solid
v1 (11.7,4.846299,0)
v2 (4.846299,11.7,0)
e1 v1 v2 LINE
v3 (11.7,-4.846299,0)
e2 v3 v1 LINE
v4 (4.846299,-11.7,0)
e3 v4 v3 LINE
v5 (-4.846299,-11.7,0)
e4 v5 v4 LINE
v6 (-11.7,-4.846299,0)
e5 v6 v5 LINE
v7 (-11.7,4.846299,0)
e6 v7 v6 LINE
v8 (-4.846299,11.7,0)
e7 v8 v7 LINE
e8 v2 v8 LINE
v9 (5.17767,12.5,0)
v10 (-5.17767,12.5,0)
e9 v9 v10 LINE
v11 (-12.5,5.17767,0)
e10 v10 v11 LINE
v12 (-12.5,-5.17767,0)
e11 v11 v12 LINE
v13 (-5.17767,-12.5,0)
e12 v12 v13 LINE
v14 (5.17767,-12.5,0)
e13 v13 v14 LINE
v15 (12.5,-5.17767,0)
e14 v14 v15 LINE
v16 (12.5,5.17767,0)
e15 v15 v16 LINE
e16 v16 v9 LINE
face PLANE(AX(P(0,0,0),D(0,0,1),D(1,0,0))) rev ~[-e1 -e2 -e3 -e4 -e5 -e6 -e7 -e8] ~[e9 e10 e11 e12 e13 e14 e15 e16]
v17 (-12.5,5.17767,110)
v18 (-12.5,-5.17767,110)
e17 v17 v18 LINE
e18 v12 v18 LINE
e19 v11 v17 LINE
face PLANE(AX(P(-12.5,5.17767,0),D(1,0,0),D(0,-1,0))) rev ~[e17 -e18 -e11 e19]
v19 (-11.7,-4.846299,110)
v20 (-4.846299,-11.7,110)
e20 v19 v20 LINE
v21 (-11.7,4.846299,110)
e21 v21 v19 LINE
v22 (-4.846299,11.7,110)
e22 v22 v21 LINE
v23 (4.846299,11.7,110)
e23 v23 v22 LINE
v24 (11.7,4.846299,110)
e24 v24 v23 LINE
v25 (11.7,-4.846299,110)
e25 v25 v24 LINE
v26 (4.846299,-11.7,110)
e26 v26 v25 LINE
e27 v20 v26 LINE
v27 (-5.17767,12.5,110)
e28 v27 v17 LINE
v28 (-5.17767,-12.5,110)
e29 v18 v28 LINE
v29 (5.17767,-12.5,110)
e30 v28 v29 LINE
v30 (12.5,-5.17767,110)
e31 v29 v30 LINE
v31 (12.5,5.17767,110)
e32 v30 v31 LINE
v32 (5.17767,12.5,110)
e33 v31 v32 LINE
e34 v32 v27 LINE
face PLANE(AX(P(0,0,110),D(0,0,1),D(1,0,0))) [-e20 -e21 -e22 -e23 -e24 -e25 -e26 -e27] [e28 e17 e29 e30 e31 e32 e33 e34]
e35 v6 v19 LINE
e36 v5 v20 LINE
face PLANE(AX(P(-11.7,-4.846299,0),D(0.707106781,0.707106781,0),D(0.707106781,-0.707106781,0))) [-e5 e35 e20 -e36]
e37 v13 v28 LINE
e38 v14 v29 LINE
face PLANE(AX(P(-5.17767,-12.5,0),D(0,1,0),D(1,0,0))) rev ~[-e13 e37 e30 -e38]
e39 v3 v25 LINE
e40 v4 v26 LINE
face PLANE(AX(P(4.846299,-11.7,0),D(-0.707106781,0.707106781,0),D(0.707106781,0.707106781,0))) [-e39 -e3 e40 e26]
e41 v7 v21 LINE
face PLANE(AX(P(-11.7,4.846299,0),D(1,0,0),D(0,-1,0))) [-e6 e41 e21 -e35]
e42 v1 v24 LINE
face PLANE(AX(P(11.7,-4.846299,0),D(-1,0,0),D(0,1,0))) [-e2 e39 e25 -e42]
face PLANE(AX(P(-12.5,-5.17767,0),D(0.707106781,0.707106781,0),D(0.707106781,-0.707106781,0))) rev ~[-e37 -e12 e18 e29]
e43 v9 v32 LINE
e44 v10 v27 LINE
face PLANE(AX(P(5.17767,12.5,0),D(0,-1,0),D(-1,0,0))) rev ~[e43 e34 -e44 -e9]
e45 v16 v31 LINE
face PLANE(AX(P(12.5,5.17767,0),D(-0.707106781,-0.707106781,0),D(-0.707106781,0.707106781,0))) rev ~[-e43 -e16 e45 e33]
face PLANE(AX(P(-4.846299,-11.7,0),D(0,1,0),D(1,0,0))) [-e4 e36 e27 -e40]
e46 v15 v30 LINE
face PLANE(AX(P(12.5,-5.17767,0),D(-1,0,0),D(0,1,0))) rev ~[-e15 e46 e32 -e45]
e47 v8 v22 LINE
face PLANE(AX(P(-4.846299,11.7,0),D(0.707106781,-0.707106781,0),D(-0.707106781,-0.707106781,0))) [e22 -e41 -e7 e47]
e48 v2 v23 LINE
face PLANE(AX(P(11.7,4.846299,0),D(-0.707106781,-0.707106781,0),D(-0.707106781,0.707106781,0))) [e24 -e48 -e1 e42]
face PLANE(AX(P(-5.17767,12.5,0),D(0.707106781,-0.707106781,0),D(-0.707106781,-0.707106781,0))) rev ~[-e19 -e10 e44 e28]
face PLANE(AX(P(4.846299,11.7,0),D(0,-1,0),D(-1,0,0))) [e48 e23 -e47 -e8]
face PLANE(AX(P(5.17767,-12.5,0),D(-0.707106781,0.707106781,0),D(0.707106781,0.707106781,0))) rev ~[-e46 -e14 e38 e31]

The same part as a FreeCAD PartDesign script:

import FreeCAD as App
import Part
import Sketcher

V = App.Vector


def add_polygon(sketch, points):
    """Adds a closed chain of lines whose ends are joined by coincident constraints."""
    first, n = sketch.GeometryCount, len(points)
    for a, b in zip(points, points[1:] + points[:1]):
        sketch.addGeometry(Part.LineSegment(App.Vector(*a, 0), App.Vector(*b, 0)), False)
    for i in range(n):
        sketch.addConstraint(Sketcher.Constraint("Coincident", first + i, 2, first + (i + 1) % n, 1))

doc = App.newDocument("Part")
params = doc.addObject("Spreadsheet::Sheet", "Params")
for row, (alias, value) in enumerate([
    ("pad1_length", "110 mm"),
], start=1):
    params.set(f"A{row}", alias)
    params.set(f"B{row}", "=" + value)
    params.setAlias(f"B{row}", alias)

body = doc.addObject("PartDesign::Body", "Body")

sketch1 = body.newObject("Sketcher::SketchObject", "Sketch")
sketch1.AttachmentSupport = (doc.getObject("XY_Plane"), [""])
sketch1.MapMode = "FlatFace"
add_polygon(sketch1, [(-12.5, 5.17767), (-12.5, -5.17767), (-5.17767, -12.5), (5.17767, -12.5), (12.5, -5.17767), (12.5, 5.17767), (5.17767, 12.5), (-5.17767, 12.5)])
add_polygon(sketch1, [(11.7, 4.846299), (11.7, -4.846299), (4.846299, -11.7), (-4.846299, -11.7), (-11.7, -4.846299), (-11.7, 4.846299), (-4.846299, 11.7), (4.846299, 11.7)])
sketch1.addConstraint([
    Sketcher.Constraint("Vertical", 0),
    Sketcher.Constraint("Horizontal", 2),
    Sketcher.Constraint("Vertical", 4),
    Sketcher.Constraint("Horizontal", 6),
    Sketcher.Constraint("Vertical", 8),
    Sketcher.Constraint("Horizontal", 10),
    Sketcher.Constraint("Vertical", 12),
    Sketcher.Constraint("Horizontal", 14),
    Sketcher.Constraint("Symmetric", 0, 2, 4, 2, -1, 1),
    Sketcher.Constraint("Symmetric", 1, 2, 5, 2, -1, 1),
    Sketcher.Constraint("Symmetric", 8, 2, 12, 2, -1, 1),
    Sketcher.Constraint("Symmetric", 9, 2, 13, 2, -1, 1),
    Sketcher.Constraint("Perpendicular", 1, 3),
    Sketcher.Constraint("Perpendicular", 5, 7),
    Sketcher.Constraint("Parallel", 7, 9),
    Sketcher.Constraint("Perpendicular", 9, 11),
    Sketcher.Constraint("Perpendicular", 13, 15),
    Sketcher.Constraint("Horizontal", 0, 2, 3, 2),
    Sketcher.Constraint("Horizontal", 4, 2, 7, 2),
    Sketcher.Constraint("Horizontal", 8, 2, 11, 2),
    Sketcher.Constraint("Horizontal", 12, 2, 15, 2),
    Sketcher.Constraint("Vertical", 2, 2, 5, 2),
    Sketcher.Constraint("Equal", 6, 0),
    Sketcher.Constraint("Equal", 14, 8),
    Sketcher.Constraint("DistanceX", 0, 2, 3, 2, 25.0),
    Sketcher.Constraint("DistanceX", -1, 1, 8, 2, 11.7),
    Sketcher.Constraint("DistanceX", 2, 1, 2, 2, 10.35534),
    Sketcher.Constraint("DistanceY", 8, 2, -1, 1, 4.846299),
])
pad1 = body.newObject("PartDesign::Pad", "Pad")
pad1.Profile = sketch1
pad1.setExpression("Length", "Params.pad1_length")

doc.recompute()
